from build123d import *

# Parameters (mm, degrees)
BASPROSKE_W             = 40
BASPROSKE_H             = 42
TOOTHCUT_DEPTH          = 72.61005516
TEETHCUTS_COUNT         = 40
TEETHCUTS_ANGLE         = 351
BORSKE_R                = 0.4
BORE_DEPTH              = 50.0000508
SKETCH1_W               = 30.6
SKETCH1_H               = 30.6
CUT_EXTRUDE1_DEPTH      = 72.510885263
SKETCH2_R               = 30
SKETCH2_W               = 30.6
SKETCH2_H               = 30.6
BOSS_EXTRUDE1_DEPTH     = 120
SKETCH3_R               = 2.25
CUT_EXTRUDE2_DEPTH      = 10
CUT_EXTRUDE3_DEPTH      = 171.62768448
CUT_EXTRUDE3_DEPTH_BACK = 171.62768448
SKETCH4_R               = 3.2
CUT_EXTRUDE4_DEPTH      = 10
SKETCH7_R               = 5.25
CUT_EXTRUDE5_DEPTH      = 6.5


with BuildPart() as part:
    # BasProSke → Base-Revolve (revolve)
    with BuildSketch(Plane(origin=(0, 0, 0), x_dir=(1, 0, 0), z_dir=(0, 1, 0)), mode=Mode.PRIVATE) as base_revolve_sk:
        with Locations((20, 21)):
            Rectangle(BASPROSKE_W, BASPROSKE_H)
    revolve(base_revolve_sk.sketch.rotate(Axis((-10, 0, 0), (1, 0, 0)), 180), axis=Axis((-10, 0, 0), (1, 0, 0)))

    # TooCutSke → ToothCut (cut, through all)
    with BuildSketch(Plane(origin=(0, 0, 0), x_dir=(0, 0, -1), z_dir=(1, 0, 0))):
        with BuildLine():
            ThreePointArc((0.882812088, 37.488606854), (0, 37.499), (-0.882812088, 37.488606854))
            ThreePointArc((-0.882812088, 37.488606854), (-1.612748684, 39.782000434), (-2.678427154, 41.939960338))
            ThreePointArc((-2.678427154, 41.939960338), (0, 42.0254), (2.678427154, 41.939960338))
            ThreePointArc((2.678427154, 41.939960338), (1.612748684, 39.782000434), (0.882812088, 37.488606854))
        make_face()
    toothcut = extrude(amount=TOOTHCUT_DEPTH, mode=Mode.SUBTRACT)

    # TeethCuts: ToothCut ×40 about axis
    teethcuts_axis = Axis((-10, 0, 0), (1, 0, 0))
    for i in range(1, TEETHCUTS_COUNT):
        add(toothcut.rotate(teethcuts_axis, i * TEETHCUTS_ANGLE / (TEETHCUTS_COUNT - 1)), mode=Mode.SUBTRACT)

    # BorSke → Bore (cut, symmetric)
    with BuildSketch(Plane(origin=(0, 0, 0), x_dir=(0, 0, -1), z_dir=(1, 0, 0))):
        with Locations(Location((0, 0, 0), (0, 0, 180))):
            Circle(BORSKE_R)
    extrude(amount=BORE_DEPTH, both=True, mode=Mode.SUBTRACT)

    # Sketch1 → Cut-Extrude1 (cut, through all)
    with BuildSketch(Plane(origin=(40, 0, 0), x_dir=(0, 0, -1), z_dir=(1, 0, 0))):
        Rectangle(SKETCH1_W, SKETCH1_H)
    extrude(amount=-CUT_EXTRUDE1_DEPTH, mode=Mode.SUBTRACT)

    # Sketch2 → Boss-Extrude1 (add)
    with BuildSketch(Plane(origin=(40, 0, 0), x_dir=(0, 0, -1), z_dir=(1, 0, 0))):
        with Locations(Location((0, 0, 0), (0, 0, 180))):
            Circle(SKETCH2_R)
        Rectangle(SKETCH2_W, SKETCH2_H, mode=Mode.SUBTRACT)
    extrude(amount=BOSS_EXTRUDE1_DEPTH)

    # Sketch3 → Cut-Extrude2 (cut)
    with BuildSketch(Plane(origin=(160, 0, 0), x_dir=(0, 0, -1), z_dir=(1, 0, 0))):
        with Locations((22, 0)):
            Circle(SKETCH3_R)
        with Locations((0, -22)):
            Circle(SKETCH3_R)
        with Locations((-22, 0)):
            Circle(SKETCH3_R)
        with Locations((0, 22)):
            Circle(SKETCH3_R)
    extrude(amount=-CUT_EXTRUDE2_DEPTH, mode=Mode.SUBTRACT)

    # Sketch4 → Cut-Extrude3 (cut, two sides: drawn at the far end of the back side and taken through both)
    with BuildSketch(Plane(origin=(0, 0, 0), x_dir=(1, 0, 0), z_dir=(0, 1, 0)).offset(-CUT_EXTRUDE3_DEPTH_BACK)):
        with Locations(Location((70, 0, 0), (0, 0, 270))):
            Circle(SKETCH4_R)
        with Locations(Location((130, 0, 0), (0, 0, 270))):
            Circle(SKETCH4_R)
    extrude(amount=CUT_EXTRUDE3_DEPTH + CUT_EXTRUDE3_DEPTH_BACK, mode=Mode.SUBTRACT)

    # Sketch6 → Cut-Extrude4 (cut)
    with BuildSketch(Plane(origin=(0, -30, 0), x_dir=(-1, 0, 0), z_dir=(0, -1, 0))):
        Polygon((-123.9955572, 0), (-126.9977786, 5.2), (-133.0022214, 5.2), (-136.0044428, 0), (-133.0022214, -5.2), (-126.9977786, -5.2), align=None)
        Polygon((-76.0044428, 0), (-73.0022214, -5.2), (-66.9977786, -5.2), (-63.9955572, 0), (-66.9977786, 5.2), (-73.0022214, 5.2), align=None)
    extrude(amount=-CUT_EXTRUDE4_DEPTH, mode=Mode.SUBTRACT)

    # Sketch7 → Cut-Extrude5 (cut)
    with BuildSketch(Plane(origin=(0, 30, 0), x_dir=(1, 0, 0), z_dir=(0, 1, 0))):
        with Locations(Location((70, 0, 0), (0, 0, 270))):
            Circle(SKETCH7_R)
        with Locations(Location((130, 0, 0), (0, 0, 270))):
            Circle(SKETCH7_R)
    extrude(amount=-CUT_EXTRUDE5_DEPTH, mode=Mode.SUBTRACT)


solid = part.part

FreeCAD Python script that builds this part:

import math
import FreeCAD as App
import Part
import Sketcher

V = App.Vector
Q = App.Units.Quantity

doc = App.newDocument("Part")
params = doc.addObject("Spreadsheet::Sheet", "Params")
for row, (alias, value) in enumerate([
    ("sketch1_width", "40 mm"),
    ("sketch1_height", "42 mm"),
    ("revolution_angle", "360 deg"),
    ("sketch2_radius", "16 mm"),
    ("sketch3_diameter", "0.8 mm"),
    ("pocket2_length", "100.000102 mm"),
    ("sketch4_width", "30.6 mm"),
    ("sketch5_diameter", "60 mm"),
    ("sketch5_width", "30.6 mm"),
    ("pad1_length", "120 mm"),
    ("sketch6_diameter", "4.5 mm"),
    ("pocket4_length", "10 mm"),
    ("sketch7_diameter", "6.4 mm"),
    ("pocket6_length", "10 mm"),
    ("sketch9_diameter", "10.5 mm"),
    ("pocket7_length", "6.5 mm"),
], start=1):
    params.set(f"A{row}", alias)
    params.set(f"B{row}", "=" + value)
    params.setAlias(f"B{row}", alias)

body = doc.addObject("PartDesign::Body", "Body")

sketch1 = body.newObject("Sketcher::SketchObject", "Sketch")
sketch1.AttachmentSupport = (doc.getObject("XZ_Plane"), [""])
sketch1.MapMode = "FlatFace"
sketch1.addGeometry(Part.LineSegment(V(0, -42, 0), V(0, 0, 0)), False)
sketch1.addGeometry(Part.LineSegment(V(0, 0, 0), V(40, 0, 0)), False)
sketch1.addGeometry(Part.LineSegment(V(40, 0, 0), V(40, -42, 0)), False)
sketch1.addGeometry(Part.LineSegment(V(40, -42, 0), V(0, -42, 0)), False)
sketch1.addConstraint(Sketcher.Constraint("Coincident", 0, 2, 1, 1))
sketch1.addConstraint(Sketcher.Constraint("Coincident", 1, 2, 2, 1))
sketch1.addConstraint(Sketcher.Constraint("Coincident", 2, 2, 3, 1))
sketch1.addConstraint(Sketcher.Constraint("Coincident", 3, 2, 0, 1))
sketch1.addConstraint(Sketcher.Constraint("Vertical", 0))
sketch1.addConstraint(Sketcher.Constraint("Horizontal", 1))
sketch1.addConstraint(Sketcher.Constraint("Vertical", 2))
sketch1.addConstraint(Sketcher.Constraint("Horizontal", 3))
sketch1.addConstraint(Sketcher.Constraint("Coincident", 0, 2, -1, 1))
sketch1.addConstraint(Sketcher.Constraint("DistanceX", 1, 1, 1, 2, 40.0))
sketch1.addConstraint(Sketcher.Constraint("DistanceY", 0, 1, 0, 2, 42.0))
sketch1.setExpression("Constraints[9]", "Params.sketch1_width")
sketch1.setExpression("Constraints[10]", "Params.sketch1_height")
revolution = body.newObject("PartDesign::Revolution", "Revolution")
revolution.Profile = sketch1
revolution.ReferenceAxis = (sketch1, ["H_Axis"])
revolution.setExpression("Angle", "Params.revolution_angle")

sketch2 = body.newObject("Sketcher::SketchObject", "Sketch001")
sketch2.AttachmentSupport = (doc.getObject("YZ_Plane"), [""])
sketch2.MapMode = "FlatFace"
sketch2.addGeometry(Part.ArcOfCircle(Part.Circle(V(0, 0, 0), V(0, 0, 1), 37.5), math.radians(-1.35), math.radians(1.35)), False)
sketch2.addGeometry(Part.ArcOfCircle(Part.Circle(V(33.8, -16.5, 0), V(0, 0, 1), 16), math.radians(59.4), math.radians(76.66)), False)
sketch2.addGeometry(Part.ArcOfCircle(Part.Circle(V(0, 0, 0), V(0, 0, 1), 42), math.radians(-3.65), math.radians(3.65)), False)
sketch2.addGeometry(Part.ArcOfCircle(Part.Circle(V(33.8, 16.5, 0), V(0, 0, 1), 16), math.radians(-76.66), math.radians(-59.4)), False)
sketch2.addConstraint(Sketcher.Constraint("Coincident", 0, 1, 1, 2))
sketch2.addConstraint(Sketcher.Constraint("Coincident", 1, 1, 2, 1))
sketch2.addConstraint(Sketcher.Constraint("Coincident", 2, 2, 3, 2))
sketch2.addConstraint(Sketcher.Constraint("Coincident", 3, 1, 0, 2))
sketch2.addConstraint(Sketcher.Constraint("Coincident", 0, 3, -1, 1))
sketch2.addConstraint(Sketcher.Constraint("Coincident", 2, 3, -1, 1))
sketch2.addConstraint(Sketcher.Constraint("Equal", 1, 3))
sketch2.addConstraint(Sketcher.Constraint("Symmetric", 1, 3, 3, 3, -1))
sketch2.addConstraint(Sketcher.Constraint("Radius", 1, 16.0))
sketch2.addConstraint(Sketcher.Constraint("Radius", 0, 37.499002))
sketch2.addConstraint(Sketcher.Constraint("Radius", 2, 42.0254))
sketch2.addConstraint(Sketcher.Constraint("DistanceY", 0, 1, 3, 3, 17.333798))
sketch2.addConstraint(Sketcher.Constraint("DistanceX", 1, 3, 1, 1, 8.143502))
sketch2.setExpression("Constraints[8]", "Params.sketch2_radius")
pocket1 = body.newObject("PartDesign::Pocket", "Pocket")
pocket1.Profile = sketch2
pocket1.Type = "ThroughAll"
pocket1.Reversed = True
doc.recompute()

polarpattern = body.newObject("PartDesign::PolarPattern", "PolarPattern")
polarpattern.Originals = [pocket1]
polarpattern.Axis = (doc.getObject("X_Axis"), [""])
polarpattern.Angle = 360
polarpattern.Occurrences = 40
body.Tip = polarpattern

sketch3 = body.newObject("Sketcher::SketchObject", "Sketch002")
sketch3.AttachmentSupport = (doc.getObject("YZ_Plane"), [""])
sketch3.MapMode = "FlatFace"
sketch3.addGeometry(Part.Circle(V(0, 0, 0), V(0, 0, 1), 0.4), False)
sketch3.addConstraint(Sketcher.Constraint("Coincident", 0, 3, -1, 1))
sketch3.addConstraint(Sketcher.Constraint("Diameter", 0, 0.8))
sketch3.setExpression("Constraints[1]", "Params.sketch3_diameter")
pocket2 = body.newObject("PartDesign::Pocket", "Pocket001")
pocket2.Profile = sketch3
pocket2.setExpression("Length", "Params.pocket2_length")
pocket2.Midplane = True

sketch4 = body.newObject("Sketcher::SketchObject", "Sketch003")
sketch4.AttachmentSupport = (doc.getObject("YZ_Plane"), [""])
sketch4.MapMode = "FlatFace"
sketch4.AttachmentOffset = App.Placement(V(0, 0, 40), App.Rotation())
sketch4.addGeometry(Part.LineSegment(V(15, 15, 0), V(-15, 15, 0)), False)
sketch4.addGeometry(Part.LineSegment(V(-15, 15, 0), V(-15, -15, 0)), False)
sketch4.addGeometry(Part.LineSegment(V(-15, -15, 0), V(15, -15, 0)), False)
sketch4.addGeometry(Part.LineSegment(V(15, -15, 0), V(15, 15, 0)), False)
sketch4.addConstraint(Sketcher.Constraint("Coincident", 0, 2, 1, 1))
sketch4.addConstraint(Sketcher.Constraint("Coincident", 1, 2, 2, 1))
sketch4.addConstraint(Sketcher.Constraint("Coincident", 2, 2, 3, 1))
sketch4.addConstraint(Sketcher.Constraint("Coincident", 3, 2, 0, 1))
sketch4.addConstraint(Sketcher.Constraint("Horizontal", 0))
sketch4.addConstraint(Sketcher.Constraint("Vertical", 1))
sketch4.addConstraint(Sketcher.Constraint("Horizontal", 2))
sketch4.addConstraint(Sketcher.Constraint("Vertical", 3))
sketch4.addConstraint(Sketcher.Constraint("Symmetric", 0, 2, 2, 2, -1, 1))
sketch4.addConstraint(Sketcher.Constraint("Equal", 2, 1))
sketch4.addConstraint(Sketcher.Constraint("DistanceX", 0, 2, 0, 1, 30.6))
sketch4.setExpression("Constraints[10]", "Params.sketch4_width")
pocket3 = body.newObject("PartDesign::Pocket", "Pocket002")
pocket3.Profile = sketch4
pocket3.Type = "ThroughAll"

sketch5 = body.newObject("Sketcher::SketchObject", "Sketch004")
sketch5.AttachmentSupport = (doc.getObject("YZ_Plane"), [""])
sketch5.MapMode = "FlatFace"
sketch5.AttachmentOffset = App.Placement(V(0, 0, 40), App.Rotation())
sketch5.addGeometry(Part.Circle(V(0, 0, 0), V(0, 0, 1), 30), False)
sketch5.addGeometry(Part.LineSegment(V(-15, -15, 0), V(-15, 15, 0)), False)
sketch5.addGeometry(Part.LineSegment(V(-15, 15, 0), V(15, 15, 0)), False)
sketch5.addGeometry(Part.LineSegment(V(15, 15, 0), V(15, -15, 0)), False)
sketch5.addGeometry(Part.LineSegment(V(15, -15, 0), V(-15, -15, 0)), False)
sketch5.addConstraint(Sketcher.Constraint("Coincident", 1, 2, 2, 1))
sketch5.addConstraint(Sketcher.Constraint("Coincident", 2, 2, 3, 1))
sketch5.addConstraint(Sketcher.Constraint("Coincident", 3, 2, 4, 1))
sketch5.addConstraint(Sketcher.Constraint("Coincident", 4, 2, 1, 1))
sketch5.addConstraint(Sketcher.Constraint("Vertical", 1))
sketch5.addConstraint(Sketcher.Constraint("Horizontal", 2))
sketch5.addConstraint(Sketcher.Constraint("Vertical", 3))
sketch5.addConstraint(Sketcher.Constraint("Horizontal", 4))
sketch5.addConstraint(Sketcher.Constraint("Coincident", 0, 3, -1, 1))
sketch5.addConstraint(Sketcher.Constraint("Symmetric", 1, 2, 3, 2, -1, 1))
sketch5.addConstraint(Sketcher.Constraint("Equal", 4, 1))
sketch5.addConstraint(Sketcher.Constraint("Diameter", 0, 60.0))
sketch5.addConstraint(Sketcher.Constraint("DistanceX", 2, 1, 2, 2, 30.6))
sketch5.setExpression("Constraints[11]", "Params.sketch5_diameter")
sketch5.setExpression("Constraints[12]", "Params.sketch5_width")
pad1 = body.newObject("PartDesign::Pad", "Pad")
pad1.Profile = sketch5
pad1.setExpression("Length", "Params.pad1_length")

sketch6 = body.newObject("Sketcher::SketchObject", "Sketch005")
sketch6.AttachmentSupport = (doc.getObject("YZ_Plane"), [""])
sketch6.MapMode = "FlatFace"
sketch6.AttachmentOffset = App.Placement(V(0, 0, 160), App.Rotation())
sketch6.addGeometry(Part.Circle(V(0, -22, 0), V(0, 0, 1), 2.2), False)
sketch6.addGeometry(Part.Circle(V(-22, 0, 0), V(0, 0, 1), 2.2), False)
sketch6.addGeometry(Part.Circle(V(0, 22, 0), V(0, 0, 1), 2.2), False)
sketch6.addGeometry(Part.Circle(V(22, 0, 0), V(0, 0, 1), 2.2), False)
sketch6.addConstraint(Sketcher.Constraint("Equal", 0, 1))
sketch6.addConstraint(Sketcher.Constraint("Equal", 1, 2))
sketch6.addConstraint(Sketcher.Constraint("Equal", 2, 3))
sketch6.addConstraint(Sketcher.Constraint("Symmetric", 0, 3, 2, 3, -1, 1))
sketch6.addConstraint(Sketcher.Constraint("Symmetric", 1, 3, 3, 3, -1, 1))
sketch6.addConstraint(Sketcher.Constraint("PointOnObject", 0, 3, -2))
sketch6.addConstraint(Sketcher.Constraint("PointOnObject", 1, 3, -1))
sketch6.addConstraint(Sketcher.Constraint("Diameter", 0, 4.5))
sketch6.addConstraint(Sketcher.Constraint("DistanceY", 0, 3, -1, 1, 22.0))
sketch6.addConstraint(Sketcher.Constraint("DistanceX", 1, 3, -1, 1, 22.0))
sketch6.setExpression("Constraints[7]", "Params.sketch6_diameter")
pocket4 = body.newObject("PartDesign::Pocket", "Pocket003")
pocket4.Profile = sketch6
pocket4.setExpression("Length", "Params.pocket4_length")

sketch7 = body.newObject("Sketcher::SketchObject", "Sketch006")
sketch7.AttachmentSupport = (doc.getObject("XZ_Plane"), [""])
sketch7.MapMode = "FlatFace"
sketch7.addGeometry(Part.Circle(V(70, 0, 0), V(0, 0, 1), 3.2), False)
sketch7.addGeometry(Part.Circle(V(130, 0, 0), V(0, 0, 1), 3.2), False)
sketch7.addConstraint(Sketcher.Constraint("Equal", 0, 1))
sketch7.addConstraint(Sketcher.Constraint("PointOnObject", 0, 3, -1))
sketch7.addConstraint(Sketcher.Constraint("PointOnObject", 1, 3, -1))
sketch7.addConstraint(Sketcher.Constraint("Diameter", 0, 6.4))
sketch7.addConstraint(Sketcher.Constraint("DistanceX", -1, 1, 0, 3, 70.0))
sketch7.addConstraint(Sketcher.Constraint("DistanceX", -1, 1, 1, 3, 130.0))
sketch7.setExpression("Constraints[3]", "Params.sketch7_diameter")
pocket5 = body.newObject("PartDesign::Pocket", "Pocket004")
pocket5.Profile = sketch7
pocket5.Type = "ThroughAll"
pocket5.Midplane = True

sketch8 = body.newObject("Sketcher::SketchObject", "Sketch007")
sketch8.AttachmentSupport = (doc.getObject("XZ_Plane"), [""])
sketch8.MapMode = "FlatFace"
sketch8.AttachmentOffset = App.Placement(V(0, 0, 30), App.Rotation())
sketch8.addGeometry(Part.LineSegment(V(124, 0, 0), V(127, -5, 0)), False)
sketch8.addGeometry(Part.LineSegment(V(127, -5, 0), V(133, -5, 0)), False)
sketch8.addGeometry(Part.LineSegment(V(133, -5, 0), V(136, 0, 0)), False)
sketch8.addGeometry(Part.LineSegment(V(136, 0, 0), V(133, 5, 0)), False)
sketch8.addGeometry(Part.LineSegment(V(133, 5, 0), V(127, 5, 0)), False)
sketch8.addGeometry(Part.LineSegment(V(127, 5, 0), V(124, 0, 0)), False)
sketch8.addGeometry(Part.LineSegment(V(76, 0, 0), V(73, 5, 0)), False)
sketch8.addGeometry(Part.LineSegment(V(73, 5, 0), V(67, 5, 0)), False)
sketch8.addGeometry(Part.LineSegment(V(67, 5, 0), V(64, 0, 0)), False)
sketch8.addGeometry(Part.LineSegment(V(64, 0, 0), V(67, -5, 0)), False)
sketch8.addGeometry(Part.LineSegment(V(67, -5, 0), V(73, -5, 0)), False)
sketch8.addGeometry(Part.LineSegment(V(73, -5, 0), V(76, 0, 0)), False)
sketch8.addConstraint(Sketcher.Constraint("Coincident", 0, 2, 1, 1))
sketch8.addConstraint(Sketcher.Constraint("Coincident", 1, 2, 2, 1))
sketch8.addConstraint(Sketcher.Constraint("Coincident", 2, 2, 3, 1))
sketch8.addConstraint(Sketcher.Constraint("Coincident", 3, 2, 4, 1))
sketch8.addConstraint(Sketcher.Constraint("Coincident", 4, 2, 5, 1))
sketch8.addConstraint(Sketcher.Constraint("Coincident", 5, 2, 0, 1))
sketch8.addConstraint(Sketcher.Constraint("Coincident", 6, 2, 7, 1))
sketch8.addConstraint(Sketcher.Constraint("Coincident", 7, 2, 8, 1))
sketch8.addConstraint(Sketcher.Constraint("Coincident", 8, 2, 9, 1))
sketch8.addConstraint(Sketcher.Constraint("Coincident", 9, 2, 10, 1))
sketch8.addConstraint(Sketcher.Constraint("Coincident", 10, 2, 11, 1))
sketch8.addConstraint(Sketcher.Constraint("Coincident", 11, 2, 6, 1))
sketch8.addConstraint(Sketcher.Constraint("Horizontal", 1))
sketch8.addConstraint(Sketcher.Constraint("Horizontal", 4))
sketch8.addConstraint(Sketcher.Constraint("Horizontal", 7))
sketch8.addConstraint(Sketcher.Constraint("Horizontal", 10))
sketch8.addConstraint(Sketcher.Constraint("Symmetric", 1, 2, 3, 2, -1))
sketch8.addConstraint(Sketcher.Constraint("Symmetric", 7, 2, 9, 2, -1))
sketch8.addConstraint(Sketcher.Constraint("PointOnObject", 2, 2, -1))
sketch8.addConstraint(Sketcher.Constraint("PointOnObject", 5, 2, -1))
sketch8.addConstraint(Sketcher.Constraint("PointOnObject", 8, 2, -1))
sketch8.addConstraint(Sketcher.Constraint("PointOnObject", 11, 2, -1))
sketch8.addConstraint(Sketcher.Constraint("Parallel", 0, 3))
sketch8.addConstraint(Sketcher.Constraint("Parallel", 2, 5))
sketch8.addConstraint(Sketcher.Constraint("Parallel", 3, 6))
sketch8.addConstraint(Sketcher.Constraint("Parallel", 5, 8))
sketch8.addConstraint(Sketcher.Constraint("Parallel", 8, 11))
sketch8.addConstraint(Sketcher.Constraint("Horizontal", 4, 2, 6, 2))
sketch8.addConstraint(Sketcher.Constraint("Equal", 4, 7))
sketch8.addConstraint(Sketcher.Constraint("Angle", 0, Q("-60 deg")))
sketch8.addConstraint(Sketcher.Constraint("DistanceX", 6, 2, 3, 2, 60.0))
sketch8.addConstraint(Sketcher.Constraint("DistanceY", 0, 2, -1, 1, 5.2))
sketch8.addConstraint(Sketcher.Constraint("DistanceX", 1, 1, 1, 2, 6.004443))
sketch8.addConstraint(Sketcher.Constraint("DistanceX", -1, 1, 0, 2, 126.997779))
pocket6 = body.newObject("PartDesign::Pocket", "Pocket005")
pocket6.Profile = sketch8
pocket6.setExpression("Length", "Params.pocket6_length")

sketch9 = body.newObject("Sketcher::SketchObject", "Sketch008")
sketch9.AttachmentSupport = (doc.getObject("XZ_Plane"), [""])
sketch9.MapMode = "FlatFace"
sketch9.AttachmentOffset = App.Placement(V(0, 0, -30), App.Rotation())
sketch9.addGeometry(Part.Circle(V(70, 0, 0), V(0, 0, 1), 5), False)
sketch9.addGeometry(Part.Circle(V(130, 0, 0), V(0, 0, 1), 5), False)
sketch9.addConstraint(Sketcher.Constraint("Equal", 0, 1))
sketch9.addConstraint(Sketcher.Constraint("PointOnObject", 0, 3, -1))
sketch9.addConstraint(Sketcher.Constraint("PointOnObject", 1, 3, -1))
sketch9.addConstraint(Sketcher.Constraint("Diameter", 0, 10.5))
sketch9.addConstraint(Sketcher.Constraint("DistanceX", -1, 1, 0, 3, 70.0))
sketch9.addConstraint(Sketcher.Constraint("DistanceX", -1, 1, 1, 3, 130.0))
sketch9.setExpression("Constraints[3]", "Params.sketch9_diameter")
pocket7 = body.newObject("PartDesign::Pocket", "Pocket006")
pocket7.Profile = sketch9
pocket7.setExpression("Length", "Params.pocket7_length")
pocket7.Reversed = True

doc.recompute()
